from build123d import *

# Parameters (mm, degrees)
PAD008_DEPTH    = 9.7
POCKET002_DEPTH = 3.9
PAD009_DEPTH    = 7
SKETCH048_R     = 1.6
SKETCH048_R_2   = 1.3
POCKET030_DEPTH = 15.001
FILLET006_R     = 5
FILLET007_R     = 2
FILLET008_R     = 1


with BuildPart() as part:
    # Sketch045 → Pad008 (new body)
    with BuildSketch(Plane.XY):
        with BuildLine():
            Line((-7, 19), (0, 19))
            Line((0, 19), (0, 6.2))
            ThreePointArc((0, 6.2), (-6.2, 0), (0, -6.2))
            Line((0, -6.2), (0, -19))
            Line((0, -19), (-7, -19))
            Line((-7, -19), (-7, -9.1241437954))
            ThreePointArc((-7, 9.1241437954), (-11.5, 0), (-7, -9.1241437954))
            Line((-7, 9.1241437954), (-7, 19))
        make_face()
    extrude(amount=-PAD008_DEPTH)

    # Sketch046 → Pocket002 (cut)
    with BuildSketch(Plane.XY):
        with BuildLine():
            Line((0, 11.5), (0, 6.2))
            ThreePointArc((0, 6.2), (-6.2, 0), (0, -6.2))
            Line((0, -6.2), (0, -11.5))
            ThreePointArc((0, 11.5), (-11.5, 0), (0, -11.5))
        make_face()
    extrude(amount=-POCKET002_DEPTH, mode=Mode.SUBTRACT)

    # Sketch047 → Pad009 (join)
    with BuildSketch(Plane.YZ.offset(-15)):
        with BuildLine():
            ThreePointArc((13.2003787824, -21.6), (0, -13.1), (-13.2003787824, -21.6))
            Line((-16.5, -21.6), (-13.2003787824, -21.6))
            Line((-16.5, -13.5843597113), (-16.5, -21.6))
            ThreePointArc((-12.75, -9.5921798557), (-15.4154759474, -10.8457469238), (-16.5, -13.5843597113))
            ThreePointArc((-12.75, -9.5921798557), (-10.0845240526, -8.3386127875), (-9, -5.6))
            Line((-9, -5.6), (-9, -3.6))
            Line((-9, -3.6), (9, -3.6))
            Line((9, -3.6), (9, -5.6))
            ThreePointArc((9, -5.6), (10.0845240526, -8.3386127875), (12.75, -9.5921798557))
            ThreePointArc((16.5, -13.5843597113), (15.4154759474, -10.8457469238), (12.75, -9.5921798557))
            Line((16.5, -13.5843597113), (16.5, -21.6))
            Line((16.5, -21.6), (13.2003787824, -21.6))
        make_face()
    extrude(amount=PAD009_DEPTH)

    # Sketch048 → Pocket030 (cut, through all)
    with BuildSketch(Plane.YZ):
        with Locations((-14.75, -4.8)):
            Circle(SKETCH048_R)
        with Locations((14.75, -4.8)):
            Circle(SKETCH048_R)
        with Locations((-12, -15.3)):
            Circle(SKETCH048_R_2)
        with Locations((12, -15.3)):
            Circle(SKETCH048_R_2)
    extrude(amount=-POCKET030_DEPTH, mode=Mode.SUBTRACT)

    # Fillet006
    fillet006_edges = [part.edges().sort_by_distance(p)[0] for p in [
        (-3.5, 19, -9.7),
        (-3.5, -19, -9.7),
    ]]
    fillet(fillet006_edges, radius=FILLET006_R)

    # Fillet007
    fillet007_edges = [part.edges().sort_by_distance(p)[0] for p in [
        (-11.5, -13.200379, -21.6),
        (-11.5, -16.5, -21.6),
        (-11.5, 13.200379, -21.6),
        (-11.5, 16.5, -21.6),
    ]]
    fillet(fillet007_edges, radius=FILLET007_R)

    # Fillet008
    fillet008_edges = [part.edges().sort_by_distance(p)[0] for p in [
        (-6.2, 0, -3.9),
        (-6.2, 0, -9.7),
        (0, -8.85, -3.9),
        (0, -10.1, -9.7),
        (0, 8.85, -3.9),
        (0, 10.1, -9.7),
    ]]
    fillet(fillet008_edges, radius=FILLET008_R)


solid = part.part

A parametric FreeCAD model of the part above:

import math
import FreeCAD as App
import Part
import Sketcher
from FreeCAD import Vector
Q = App.Units.Quantity


def edges_at(feature, points):
    """Names of the edges that pass closest to the given points."""
    edges = feature.Shape.Edges
    near = lambda p: min(range(len(edges)), key=lambda i: edges[i].distToShape(Part.Vertex(*p))[0])
    return sorted({f"Edge{near(p) + 1}" for p in points})

doc = App.newDocument("Part")
body = doc.addObject("PartDesign::Body", "Body")

sketch1 = body.newObject("Sketcher::SketchObject", "Sketch")
sketch1.AttachmentSupport = (doc.getObject("XY_Plane"), [""])
sketch1.MapMode = "FlatFace"
sketch1.addGeometry([
    Part.LineSegment(Vector(0, 19, 0), Vector(-7, 19, 0)),
    Part.LineSegment(Vector(-7, 19, 0), Vector(-7, 9, 0)),
    Part.ArcOfCircle(Part.Circle(Vector(0, 0, 0), Vector(0, 0, 1), 12), math.radians(127), math.radians(233)),
    Part.LineSegment(Vector(-7, -9, 0), Vector(-7, -19, 0)),
    Part.LineSegment(Vector(-7, -19, 0), Vector(0, -19, 0)),
    Part.LineSegment(Vector(0, -19, 0), Vector(0, -6, 0)),
    Part.ArcOfCircle(Part.Circle(Vector(0, 0, 0), Vector(0, 0, 1), 6), math.radians(90), math.radians(270)),
    Part.LineSegment(Vector(0, 6, 0), Vector(0, 19, 0)),
], False)
sketch1.addConstraint([
    Sketcher.Constraint("Coincident", 0, 2, 1, 1),
    Sketcher.Constraint("Coincident", 1, 2, 2, 1),
    Sketcher.Constraint("Coincident", 2, 2, 3, 1),
    Sketcher.Constraint("Coincident", 3, 2, 4, 1),
    Sketcher.Constraint("Coincident", 4, 2, 5, 1),
    Sketcher.Constraint("Coincident", 5, 2, 6, 2),
    Sketcher.Constraint("Coincident", 6, 1, 7, 1),
    Sketcher.Constraint("Coincident", 7, 2, 0, 1),
    Sketcher.Constraint("Horizontal", 0),
    Sketcher.Constraint("Vertical", 1),
    Sketcher.Constraint("Vertical", 3),
    Sketcher.Constraint("Horizontal", 4),
    Sketcher.Constraint("Vertical", 5),
    Sketcher.Constraint("Vertical", 7),
    Sketcher.Constraint("Coincident", 2, 3, -1, 1),
    Sketcher.Constraint("Coincident", 6, 3, -1, 1),
    Sketcher.Constraint("Symmetric", 4, 2, 7, 2, -1, 1),
    Sketcher.Constraint("PointOnObject", 4, 2, -2),
    Sketcher.Constraint("Vertical", 1, 2, 2, 2),
    Sketcher.Constraint("Radius", 2, Q("11.5 mm")),
    Sketcher.Constraint("Radius", 6, Q("6.2 mm")),
    Sketcher.Constraint("DistanceX", 0, 2, 0, 1, Q("7 mm")),
    Sketcher.Constraint("DistanceY", 5, 1, 5, 2, Q("12.8 mm")),
])
pad1 = body.newObject("PartDesign::Pad", "Pad")
pad1.Profile = sketch1
pad1.Length = 9.7
pad1.Reversed = True

sketch2 = body.newObject("Sketcher::SketchObject", "Sketch001")
sketch2.AttachmentSupport = (doc.getObject("XY_Plane"), [""])
sketch2.MapMode = "FlatFace"
sketch2.addGeometry([
    Part.LineSegment(Vector(0, 6, 0), Vector(0, 12, 0)),
    Part.ArcOfCircle(Part.Circle(Vector(0, 0, 0), Vector(0, 0, 1), 12), math.radians(90), math.radians(270)),
    Part.LineSegment(Vector(0, -12, 0), Vector(0, -6, 0)),
    Part.ArcOfCircle(Part.Circle(Vector(0, 0, 0), Vector(0, 0, 1), 6), math.radians(90), math.radians(270)),
], False)
sketch2.addConstraint([
    Sketcher.Constraint("Coincident", 0, 2, 1, 1),
    Sketcher.Constraint("Coincident", 1, 2, 2, 1),
    Sketcher.Constraint("Coincident", 2, 2, 3, 2),
    Sketcher.Constraint("Coincident", 3, 1, 0, 1),
    Sketcher.Constraint("Vertical", 0),
    Sketcher.Constraint("Vertical", 2),
    Sketcher.Constraint("Coincident", 1, 3, -1, 1),
    Sketcher.Constraint("Coincident", 3, 3, -1, 1),
    Sketcher.Constraint("PointOnObject", 0, 2, -2),
    Sketcher.Constraint("PointOnObject", 1, 2, -2),
    Sketcher.Constraint("Radius", 1, Q("11.5 mm")),
    Sketcher.Constraint("Radius", 3, Q("6.2 mm")),
])
pocket1 = body.newObject("PartDesign::Pocket", "Pocket")
pocket1.Profile = sketch2
pocket1.Length = 3.9

sketch3 = body.newObject("Sketcher::SketchObject", "Sketch002")
sketch3.AttachmentSupport = (doc.getObject("YZ_Plane"), [""])
sketch3.MapMode = "FlatFace"
sketch3.AttachmentOffset = App.Placement(Vector(0, 0, -15), App.Rotation())
sketch3.addGeometry([
    Part.ArcOfCircle(Part.Circle(Vector(0, -27.6, 0), Vector(0, 0, 1), 14.5), math.radians(24), math.radians(156)),
    Part.LineSegment(Vector(13.2, -21.6, 0), Vector(16.5, -21.6, 0)),
    Part.LineSegment(Vector(16.5, -21.6, 0), Vector(16.5, -13.6, 0)),
    Part.ArcOfCircle(Part.Circle(Vector(12.5, -13.6, 0), Vector(0, 0, 1), 4), math.radians(0), math.radians(86)),
    Part.ArcOfCircle(Part.Circle(Vector(13, -5.6, 0), Vector(0, 0, 1), 4), math.radians(180), math.radians(266)),
    Part.LineSegment(Vector(9, -5.6, 0), Vector(9, -3.6, 0)),
    Part.LineSegment(Vector(9, -3.6, 0), Vector(-9, -3.6, 0)),
    Part.LineSegment(Vector(-9, -3.6, 0), Vector(-9, -5.6, 0)),
    Part.ArcOfCircle(Part.Circle(Vector(-13, -5.6, 0), Vector(0, 0, 1), 4), math.radians(-86), math.radians(0)),
    Part.ArcOfCircle(Part.Circle(Vector(-12.5, -13.6, 0), Vector(0, 0, 1), 4), math.radians(94), math.radians(180)),
    Part.LineSegment(Vector(-16.5, -13.6, 0), Vector(-16.5, -21.6, 0)),
    Part.LineSegment(Vector(-16.5, -21.6, 0), Vector(-13.2, -21.6, 0)),
], False)
sketch3.addConstraint([
    Sketcher.Constraint("Coincident", 0, 1, 1, 1),
    Sketcher.Constraint("Coincident", 1, 2, 2, 1),
    Sketcher.Constraint("Tangent", 2, 2, 3, 1),
    Sketcher.Constraint("Tangent", 3, 2, 4, 2),
    Sketcher.Constraint("Tangent", 4, 1, 5, 1),
    Sketcher.Constraint("Coincident", 5, 2, 6, 1),
    Sketcher.Constraint("Coincident", 6, 2, 7, 1),
    Sketcher.Constraint("Tangent", 7, 2, 8, 2),
    Sketcher.Constraint("Tangent", 8, 1, 9, 1),
    Sketcher.Constraint("Tangent", 9, 2, 10, 1),
    Sketcher.Constraint("Coincident", 10, 2, 11, 1),
    Sketcher.Constraint("Coincident", 11, 2, 0, 2),
    Sketcher.Constraint("Horizontal", 1),
    Sketcher.Constraint("Vertical", 2),
    Sketcher.Constraint("Vertical", 5),
    Sketcher.Constraint("Horizontal", 6),
    Sketcher.Constraint("Vertical", 7),
    Sketcher.Constraint("Vertical", 10),
    Sketcher.Constraint("Horizontal", 11),
    Sketcher.Constraint("Equal", 3, 4),
    Sketcher.Constraint("Equal", 4, 8),
    Sketcher.Constraint("Equal", 8, 9),
    Sketcher.Constraint("Symmetric", 4, 3, 8, 3, -2),
    Sketcher.Constraint("Symmetric", 1, 2, 10, 2, -2),
    Sketcher.Constraint("PointOnObject", 0, 3, -2),
    Sketcher.Constraint("Radius", 3, Q("4 mm")),
    Sketcher.Constraint("Radius", 0, Q("14.5 mm")),
    Sketcher.Constraint("DistanceX", 6, 2, 6, 1, Q("18 mm")),
    Sketcher.Constraint("DistanceY", 5, 1, 5, 2, Q("2 mm")),
    Sketcher.Constraint("DistanceY", 0, 3, 4, 3, Q("22 mm")),
    Sketcher.Constraint("DistanceX", 9, 3, 3, 3, Q("25 mm")),
    Sketcher.Constraint("DistanceY", 0, 3, 0, 1, Q("6 mm")),
    Sketcher.Constraint("DistanceY", 0, 3, -1, 1, Q("27.6 mm")),
])
pad2 = body.newObject("PartDesign::Pad", "Pad001")
pad2.Profile = sketch3
pad2.Length = 7

sketch4 = body.newObject("Sketcher::SketchObject", "Sketch003")
sketch4.AttachmentSupport = (doc.getObject("YZ_Plane"), [""])
sketch4.MapMode = "FlatFace"
sketch4.addGeometry([
    Part.Circle(Vector(-14.8, -4.8, 0), Vector(0, 0, 1), 1.6),
    Part.Circle(Vector(14.8, -4.8, 0), Vector(0, 0, 1), 1.6),
    Part.Circle(Vector(-12, -15.3, 0), Vector(0, 0, 1), 1.3),
    Part.Circle(Vector(12, -15.3, 0), Vector(0, 0, 1), 1.3),
], False)
sketch4.addConstraint([
    Sketcher.Constraint("Equal", 0, 1),
    Sketcher.Constraint("Equal", 2, 3),
    Sketcher.Constraint("Symmetric", 0, 3, 1, 3, -2),
    Sketcher.Constraint("Symmetric", 2, 3, 3, 3, -2),
    Sketcher.Constraint("Diameter", 0, Q("3.2 mm")),
    Sketcher.Constraint("Diameter", 2, Q("2.6 mm")),
    Sketcher.Constraint("DistanceX", 2, 3, -1, 1, Q("12 mm")),
    Sketcher.Constraint("DistanceY", 0, 3, -1, 1, Q("4.8 mm")),
    Sketcher.Constraint("DistanceY", 2, 3, -1, 1, Q("15.3 mm")),
    Sketcher.Constraint("DistanceX", 0, 3, 1, 3, Q("29.5 mm")),
])
pocket2 = body.newObject("PartDesign::Pocket", "Pocket001")
pocket2.Profile = sketch4
pocket2.Type = "ThroughAll"
doc.recompute()

fillet = body.newObject("PartDesign::Fillet", "Fillet")
fillet.Base = (pocket2, edges_at(pocket2, [(-3.5, 19, -9.7), (-3.5, -19, -9.7)]))
fillet.Radius = 5
doc.recompute()

fillet2 = body.newObject("PartDesign::Fillet", "Fillet001")
fillet2.Base = (fillet, edges_at(fillet, [
    (-11.5, -13.2, -21.6),
    (-11.5, -16.5, -21.6),
    (-11.5, 13.2, -21.6),
    (-11.5, 16.5, -21.6),
]))
fillet2.Radius = 2
doc.recompute()

fillet3 = body.newObject("PartDesign::Fillet", "Fillet002")
fillet3.Base = (fillet2, edges_at(fillet2, [
    (-6.2, 0, -3.9),
    (-6.2, 0, -9.7),
    (0, -8.85, -3.9),
    (0, -10.1, -9.7),
    (0, 8.85, -3.9),
    (0, 10.1, -9.7),
]))
fillet3.Radius = 1

doc.recompute()
